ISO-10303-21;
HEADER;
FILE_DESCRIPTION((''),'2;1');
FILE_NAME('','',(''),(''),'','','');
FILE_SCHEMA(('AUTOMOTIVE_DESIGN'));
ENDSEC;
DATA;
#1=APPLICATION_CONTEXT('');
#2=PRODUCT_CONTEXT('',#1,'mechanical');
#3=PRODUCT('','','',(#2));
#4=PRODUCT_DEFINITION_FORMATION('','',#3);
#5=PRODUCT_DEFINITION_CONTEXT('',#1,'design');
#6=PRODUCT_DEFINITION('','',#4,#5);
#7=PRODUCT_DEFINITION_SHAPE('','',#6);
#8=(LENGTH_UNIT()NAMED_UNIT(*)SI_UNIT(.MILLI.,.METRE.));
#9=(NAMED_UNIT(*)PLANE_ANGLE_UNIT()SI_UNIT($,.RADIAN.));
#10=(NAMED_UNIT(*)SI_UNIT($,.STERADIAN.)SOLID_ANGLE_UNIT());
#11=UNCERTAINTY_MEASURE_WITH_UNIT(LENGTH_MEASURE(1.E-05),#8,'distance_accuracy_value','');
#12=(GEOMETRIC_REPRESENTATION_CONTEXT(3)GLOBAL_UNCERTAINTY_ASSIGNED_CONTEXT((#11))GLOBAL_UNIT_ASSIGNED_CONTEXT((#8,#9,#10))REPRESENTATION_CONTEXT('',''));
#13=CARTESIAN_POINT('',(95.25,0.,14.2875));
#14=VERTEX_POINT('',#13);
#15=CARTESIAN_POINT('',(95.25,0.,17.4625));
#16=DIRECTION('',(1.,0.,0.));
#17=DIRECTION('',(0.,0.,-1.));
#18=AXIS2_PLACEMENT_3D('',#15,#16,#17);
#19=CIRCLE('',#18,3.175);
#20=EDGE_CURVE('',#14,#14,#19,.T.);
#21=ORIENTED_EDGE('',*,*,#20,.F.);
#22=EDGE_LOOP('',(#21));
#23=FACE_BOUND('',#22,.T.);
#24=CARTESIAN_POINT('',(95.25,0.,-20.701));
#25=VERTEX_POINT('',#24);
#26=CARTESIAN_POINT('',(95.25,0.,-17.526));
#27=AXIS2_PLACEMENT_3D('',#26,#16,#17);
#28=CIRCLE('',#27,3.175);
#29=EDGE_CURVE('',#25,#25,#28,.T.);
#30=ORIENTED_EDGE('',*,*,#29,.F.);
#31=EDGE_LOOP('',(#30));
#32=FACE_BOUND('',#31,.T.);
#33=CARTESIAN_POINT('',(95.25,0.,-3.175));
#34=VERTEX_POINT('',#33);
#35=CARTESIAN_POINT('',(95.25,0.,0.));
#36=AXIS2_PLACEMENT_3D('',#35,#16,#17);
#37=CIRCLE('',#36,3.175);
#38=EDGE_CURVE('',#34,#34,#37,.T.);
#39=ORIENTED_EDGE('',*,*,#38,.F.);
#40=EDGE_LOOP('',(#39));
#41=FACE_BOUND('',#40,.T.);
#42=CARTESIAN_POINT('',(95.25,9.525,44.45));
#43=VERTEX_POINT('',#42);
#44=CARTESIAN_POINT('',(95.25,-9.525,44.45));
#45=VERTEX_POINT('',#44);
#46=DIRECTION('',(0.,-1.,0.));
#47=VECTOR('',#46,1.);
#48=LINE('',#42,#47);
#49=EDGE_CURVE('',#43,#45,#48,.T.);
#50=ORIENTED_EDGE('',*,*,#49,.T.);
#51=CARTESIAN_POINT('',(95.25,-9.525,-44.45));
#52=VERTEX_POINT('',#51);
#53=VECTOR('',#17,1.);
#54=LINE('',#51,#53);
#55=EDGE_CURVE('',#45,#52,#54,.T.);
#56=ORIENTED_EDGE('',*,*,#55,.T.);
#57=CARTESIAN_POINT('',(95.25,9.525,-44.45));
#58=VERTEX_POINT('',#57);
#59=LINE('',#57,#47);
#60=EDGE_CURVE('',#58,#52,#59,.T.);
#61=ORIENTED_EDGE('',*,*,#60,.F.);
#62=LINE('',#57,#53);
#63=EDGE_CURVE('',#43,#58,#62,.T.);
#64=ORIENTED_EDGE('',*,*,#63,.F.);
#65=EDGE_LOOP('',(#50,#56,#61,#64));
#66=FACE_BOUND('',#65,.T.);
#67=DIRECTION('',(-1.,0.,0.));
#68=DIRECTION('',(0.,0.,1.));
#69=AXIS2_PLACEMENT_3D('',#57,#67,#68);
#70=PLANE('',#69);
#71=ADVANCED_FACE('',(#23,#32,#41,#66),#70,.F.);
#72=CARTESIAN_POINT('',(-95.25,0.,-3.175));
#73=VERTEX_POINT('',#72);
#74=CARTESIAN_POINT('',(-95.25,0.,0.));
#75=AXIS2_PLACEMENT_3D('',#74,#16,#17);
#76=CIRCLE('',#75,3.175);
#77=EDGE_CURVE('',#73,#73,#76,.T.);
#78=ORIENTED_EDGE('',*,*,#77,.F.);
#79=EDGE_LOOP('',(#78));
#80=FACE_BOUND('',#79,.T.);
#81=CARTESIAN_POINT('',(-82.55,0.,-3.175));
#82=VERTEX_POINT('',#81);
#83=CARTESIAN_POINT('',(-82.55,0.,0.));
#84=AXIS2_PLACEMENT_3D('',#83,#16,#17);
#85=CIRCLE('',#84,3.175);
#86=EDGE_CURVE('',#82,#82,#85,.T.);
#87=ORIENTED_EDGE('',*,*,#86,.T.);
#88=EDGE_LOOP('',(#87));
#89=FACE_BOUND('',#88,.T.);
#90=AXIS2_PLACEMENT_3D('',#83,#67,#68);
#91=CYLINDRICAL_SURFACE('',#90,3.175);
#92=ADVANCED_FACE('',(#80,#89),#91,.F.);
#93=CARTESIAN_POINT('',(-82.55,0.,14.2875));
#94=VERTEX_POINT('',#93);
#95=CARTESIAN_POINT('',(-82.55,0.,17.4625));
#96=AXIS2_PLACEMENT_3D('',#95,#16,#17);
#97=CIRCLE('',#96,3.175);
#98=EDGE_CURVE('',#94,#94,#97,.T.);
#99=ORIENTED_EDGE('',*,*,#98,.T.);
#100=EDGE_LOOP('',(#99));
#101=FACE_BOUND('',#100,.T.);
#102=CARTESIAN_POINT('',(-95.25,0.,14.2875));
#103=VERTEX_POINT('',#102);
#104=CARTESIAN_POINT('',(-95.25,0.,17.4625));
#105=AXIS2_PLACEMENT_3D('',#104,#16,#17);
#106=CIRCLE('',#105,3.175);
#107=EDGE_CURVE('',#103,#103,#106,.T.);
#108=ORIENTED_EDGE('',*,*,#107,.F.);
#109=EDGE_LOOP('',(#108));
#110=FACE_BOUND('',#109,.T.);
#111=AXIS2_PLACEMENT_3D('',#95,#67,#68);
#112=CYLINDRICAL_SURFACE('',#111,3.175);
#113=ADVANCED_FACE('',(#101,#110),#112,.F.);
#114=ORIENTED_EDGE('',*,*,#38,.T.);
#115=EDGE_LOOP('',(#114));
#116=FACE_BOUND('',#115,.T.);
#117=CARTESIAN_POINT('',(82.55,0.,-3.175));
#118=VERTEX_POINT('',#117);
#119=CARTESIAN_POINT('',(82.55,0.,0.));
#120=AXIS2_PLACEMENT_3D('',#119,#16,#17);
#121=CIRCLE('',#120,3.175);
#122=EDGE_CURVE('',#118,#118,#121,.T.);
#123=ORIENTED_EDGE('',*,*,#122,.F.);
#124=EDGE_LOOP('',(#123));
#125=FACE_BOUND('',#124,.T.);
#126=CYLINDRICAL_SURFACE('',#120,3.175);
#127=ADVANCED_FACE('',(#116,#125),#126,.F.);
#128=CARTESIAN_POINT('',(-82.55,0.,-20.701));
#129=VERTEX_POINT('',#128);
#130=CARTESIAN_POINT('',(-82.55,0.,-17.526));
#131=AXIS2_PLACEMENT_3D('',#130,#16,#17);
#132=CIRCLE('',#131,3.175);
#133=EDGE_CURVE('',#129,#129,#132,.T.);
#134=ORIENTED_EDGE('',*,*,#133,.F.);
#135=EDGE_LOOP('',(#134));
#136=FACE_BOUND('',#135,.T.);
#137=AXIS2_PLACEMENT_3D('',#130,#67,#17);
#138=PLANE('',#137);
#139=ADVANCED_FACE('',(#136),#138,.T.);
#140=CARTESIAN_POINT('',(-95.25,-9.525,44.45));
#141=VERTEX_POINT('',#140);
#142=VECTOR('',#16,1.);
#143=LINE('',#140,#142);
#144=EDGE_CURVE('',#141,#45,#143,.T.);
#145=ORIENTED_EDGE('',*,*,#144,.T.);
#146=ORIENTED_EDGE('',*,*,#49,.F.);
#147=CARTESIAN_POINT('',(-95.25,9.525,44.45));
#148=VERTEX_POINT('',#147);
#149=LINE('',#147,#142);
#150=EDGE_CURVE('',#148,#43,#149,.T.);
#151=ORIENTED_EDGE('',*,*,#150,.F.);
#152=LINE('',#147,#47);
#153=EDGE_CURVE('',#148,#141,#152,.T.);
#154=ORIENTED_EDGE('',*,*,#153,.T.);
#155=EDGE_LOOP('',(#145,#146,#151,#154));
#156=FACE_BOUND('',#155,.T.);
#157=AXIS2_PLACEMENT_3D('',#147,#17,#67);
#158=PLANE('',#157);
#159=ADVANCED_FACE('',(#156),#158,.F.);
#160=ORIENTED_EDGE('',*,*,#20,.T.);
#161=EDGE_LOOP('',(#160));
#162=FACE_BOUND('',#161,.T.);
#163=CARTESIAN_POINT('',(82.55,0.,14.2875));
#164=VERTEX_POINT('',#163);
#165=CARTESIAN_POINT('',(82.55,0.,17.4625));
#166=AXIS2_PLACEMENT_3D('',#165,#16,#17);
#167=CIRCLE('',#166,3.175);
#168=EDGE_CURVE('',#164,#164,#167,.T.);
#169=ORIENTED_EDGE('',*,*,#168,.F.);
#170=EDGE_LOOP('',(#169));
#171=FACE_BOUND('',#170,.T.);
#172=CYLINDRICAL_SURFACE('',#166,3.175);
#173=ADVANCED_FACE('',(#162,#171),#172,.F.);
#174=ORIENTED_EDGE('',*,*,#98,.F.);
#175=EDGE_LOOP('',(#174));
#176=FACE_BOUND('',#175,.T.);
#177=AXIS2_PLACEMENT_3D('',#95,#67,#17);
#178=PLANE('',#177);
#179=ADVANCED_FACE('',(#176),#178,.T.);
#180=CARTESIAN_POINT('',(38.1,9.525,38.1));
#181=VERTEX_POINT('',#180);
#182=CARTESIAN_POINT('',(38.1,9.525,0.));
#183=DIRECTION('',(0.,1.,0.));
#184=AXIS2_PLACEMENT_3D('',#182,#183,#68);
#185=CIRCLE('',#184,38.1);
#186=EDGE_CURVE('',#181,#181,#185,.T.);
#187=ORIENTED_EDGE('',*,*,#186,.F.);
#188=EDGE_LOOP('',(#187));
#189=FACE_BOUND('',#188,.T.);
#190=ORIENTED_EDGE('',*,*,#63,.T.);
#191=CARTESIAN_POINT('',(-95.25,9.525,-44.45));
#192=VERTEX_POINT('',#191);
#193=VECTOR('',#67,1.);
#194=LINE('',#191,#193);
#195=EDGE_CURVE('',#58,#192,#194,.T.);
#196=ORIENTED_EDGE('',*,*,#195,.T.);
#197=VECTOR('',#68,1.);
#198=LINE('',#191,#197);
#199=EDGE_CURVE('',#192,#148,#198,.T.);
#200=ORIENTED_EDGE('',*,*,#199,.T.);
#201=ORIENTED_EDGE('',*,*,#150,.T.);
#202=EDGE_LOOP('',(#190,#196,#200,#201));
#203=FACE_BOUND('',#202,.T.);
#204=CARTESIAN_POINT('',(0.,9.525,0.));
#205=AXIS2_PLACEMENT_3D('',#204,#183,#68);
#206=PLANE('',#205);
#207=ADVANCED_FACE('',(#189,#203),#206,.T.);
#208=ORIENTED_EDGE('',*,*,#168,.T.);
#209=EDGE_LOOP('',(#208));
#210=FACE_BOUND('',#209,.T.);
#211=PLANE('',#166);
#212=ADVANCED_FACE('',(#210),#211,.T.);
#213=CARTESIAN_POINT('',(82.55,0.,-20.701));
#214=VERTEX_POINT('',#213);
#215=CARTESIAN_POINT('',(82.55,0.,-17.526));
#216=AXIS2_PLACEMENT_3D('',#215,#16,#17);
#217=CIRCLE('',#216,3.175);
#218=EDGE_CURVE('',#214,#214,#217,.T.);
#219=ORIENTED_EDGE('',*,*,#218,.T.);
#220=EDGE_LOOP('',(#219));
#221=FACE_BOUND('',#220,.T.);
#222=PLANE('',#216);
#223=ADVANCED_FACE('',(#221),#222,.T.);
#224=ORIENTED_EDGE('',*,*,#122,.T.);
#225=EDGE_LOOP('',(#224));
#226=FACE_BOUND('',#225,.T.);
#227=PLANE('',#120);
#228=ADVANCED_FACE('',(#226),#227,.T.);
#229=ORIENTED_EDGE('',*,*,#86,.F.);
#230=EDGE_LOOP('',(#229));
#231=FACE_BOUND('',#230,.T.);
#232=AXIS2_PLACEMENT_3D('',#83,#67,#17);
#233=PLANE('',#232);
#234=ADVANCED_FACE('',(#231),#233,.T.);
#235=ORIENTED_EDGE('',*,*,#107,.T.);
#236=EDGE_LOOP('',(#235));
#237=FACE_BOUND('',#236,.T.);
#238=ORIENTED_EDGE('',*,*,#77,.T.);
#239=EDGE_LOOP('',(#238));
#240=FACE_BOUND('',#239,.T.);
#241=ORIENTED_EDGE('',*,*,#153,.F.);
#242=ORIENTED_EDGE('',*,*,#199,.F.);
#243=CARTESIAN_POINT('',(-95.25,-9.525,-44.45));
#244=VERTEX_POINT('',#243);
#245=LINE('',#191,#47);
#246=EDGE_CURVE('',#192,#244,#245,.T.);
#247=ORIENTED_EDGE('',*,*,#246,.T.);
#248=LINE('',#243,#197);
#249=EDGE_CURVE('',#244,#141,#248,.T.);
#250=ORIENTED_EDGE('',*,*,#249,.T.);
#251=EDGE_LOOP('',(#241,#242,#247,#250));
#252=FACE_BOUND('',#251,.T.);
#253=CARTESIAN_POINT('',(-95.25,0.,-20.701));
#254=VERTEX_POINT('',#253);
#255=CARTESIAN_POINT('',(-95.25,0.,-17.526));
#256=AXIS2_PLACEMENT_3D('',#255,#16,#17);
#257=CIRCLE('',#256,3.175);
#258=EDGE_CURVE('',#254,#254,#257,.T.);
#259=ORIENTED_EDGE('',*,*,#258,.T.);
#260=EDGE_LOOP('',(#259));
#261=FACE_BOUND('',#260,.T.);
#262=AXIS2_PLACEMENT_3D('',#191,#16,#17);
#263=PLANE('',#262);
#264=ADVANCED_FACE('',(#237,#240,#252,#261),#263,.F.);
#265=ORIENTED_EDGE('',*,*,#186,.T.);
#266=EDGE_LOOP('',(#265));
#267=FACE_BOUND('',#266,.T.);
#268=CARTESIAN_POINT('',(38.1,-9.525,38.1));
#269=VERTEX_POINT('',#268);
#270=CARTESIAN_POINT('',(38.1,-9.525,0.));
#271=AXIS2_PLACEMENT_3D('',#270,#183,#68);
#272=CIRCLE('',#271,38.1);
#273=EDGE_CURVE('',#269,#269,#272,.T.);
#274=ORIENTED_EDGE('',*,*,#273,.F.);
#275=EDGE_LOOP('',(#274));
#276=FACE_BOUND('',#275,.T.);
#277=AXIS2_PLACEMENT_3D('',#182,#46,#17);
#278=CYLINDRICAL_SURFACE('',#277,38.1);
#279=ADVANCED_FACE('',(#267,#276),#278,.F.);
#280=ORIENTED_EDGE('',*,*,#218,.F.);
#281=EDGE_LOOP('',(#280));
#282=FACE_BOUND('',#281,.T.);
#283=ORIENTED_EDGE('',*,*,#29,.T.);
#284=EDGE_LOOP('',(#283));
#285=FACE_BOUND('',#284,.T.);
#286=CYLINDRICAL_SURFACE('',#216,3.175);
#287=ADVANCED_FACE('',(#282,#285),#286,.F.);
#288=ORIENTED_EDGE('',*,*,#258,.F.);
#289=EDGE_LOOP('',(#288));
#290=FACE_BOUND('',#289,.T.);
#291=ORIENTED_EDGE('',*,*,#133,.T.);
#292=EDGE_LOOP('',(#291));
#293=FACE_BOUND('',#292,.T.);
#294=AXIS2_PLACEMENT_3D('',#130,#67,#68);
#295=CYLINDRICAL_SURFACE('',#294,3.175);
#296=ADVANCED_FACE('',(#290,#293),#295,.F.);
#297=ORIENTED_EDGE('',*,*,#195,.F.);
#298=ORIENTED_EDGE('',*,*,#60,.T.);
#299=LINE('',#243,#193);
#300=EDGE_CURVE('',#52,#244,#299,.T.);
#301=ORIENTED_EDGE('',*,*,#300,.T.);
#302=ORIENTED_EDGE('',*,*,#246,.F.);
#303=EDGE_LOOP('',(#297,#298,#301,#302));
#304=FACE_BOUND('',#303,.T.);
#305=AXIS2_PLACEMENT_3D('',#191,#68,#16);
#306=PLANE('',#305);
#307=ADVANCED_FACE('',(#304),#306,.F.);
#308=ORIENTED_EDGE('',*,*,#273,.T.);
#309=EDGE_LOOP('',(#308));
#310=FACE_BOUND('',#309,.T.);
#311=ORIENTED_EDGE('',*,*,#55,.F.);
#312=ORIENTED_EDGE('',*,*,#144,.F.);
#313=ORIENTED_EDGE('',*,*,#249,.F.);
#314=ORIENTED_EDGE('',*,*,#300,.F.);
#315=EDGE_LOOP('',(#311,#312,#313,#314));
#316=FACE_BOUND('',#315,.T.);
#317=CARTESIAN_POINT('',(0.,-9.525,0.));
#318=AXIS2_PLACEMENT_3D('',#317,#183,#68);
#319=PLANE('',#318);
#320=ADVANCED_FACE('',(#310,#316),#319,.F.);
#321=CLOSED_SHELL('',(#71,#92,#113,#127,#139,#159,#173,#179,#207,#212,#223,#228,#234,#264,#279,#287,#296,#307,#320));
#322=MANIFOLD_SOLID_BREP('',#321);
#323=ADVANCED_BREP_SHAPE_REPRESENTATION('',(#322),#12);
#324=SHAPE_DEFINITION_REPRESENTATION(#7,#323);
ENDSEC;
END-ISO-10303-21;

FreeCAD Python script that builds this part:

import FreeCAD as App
import Part
import Sketcher

V = App.Vector
Q = App.Units.Quantity


def add_polygon(sketch, points):
    """Adds a closed chain of lines whose ends are joined by coincident constraints."""
    first, n = sketch.GeometryCount, len(points)
    for a, b in zip(points, points[1:] + points[:1]):
        sketch.addGeometry(Part.LineSegment(App.Vector(*a, 0), App.Vector(*b, 0)), False)
    for i in range(n):
        sketch.addConstraint(Sketcher.Constraint("Coincident", first + i, 2, first + (i + 1) % n, 1))

doc = App.newDocument("Part")
body = doc.addObject("PartDesign::Body", "Body")

# Sketch on XZ plane
sketch1 = body.newObject("Sketcher::SketchObject", "Sketch")
sketch1.AttachmentSupport = (doc.getObject("XZ_Plane"), [""])
sketch1.MapMode = "FlatFace"
add_polygon(sketch1, [(-95.25, -44.45), (-95.25, 44.45), (95.25, 44.45), (95.25, -44.45)])  # lines 0-3
sketch1.addGeometry(Part.Circle(V(38.1, 0, 0), V(0, 0, 1), 38.1), False)  # 4
sketch1.addConstraint([
    Sketcher.Constraint("Vertical", 0),
    Sketcher.Constraint("Horizontal", 1),
    Sketcher.Constraint("Vertical", 2),
    Sketcher.Constraint("Horizontal", 3),
    Sketcher.Constraint("Symmetric", 0, 2, 2, 2, -1, 1),
    Sketcher.Constraint("PointOnObject", 4, 3, -1),
    Sketcher.Constraint("Diameter", 4, Q("3 in")),
    Sketcher.Constraint("DistanceX", 1, 1, 1, 2, Q("7.5 in")),
    Sketcher.Constraint("DistanceY", 0, 1, 0, 2, Q("3.5 in")),
    Sketcher.Constraint("DistanceX", -1, 1, 4, 3, Q("1.5 in")),
])
pad1 = body.newObject("PartDesign::Pad", "Pad")
pad1.Profile = sketch1
pad1.Length = Q("0.75 in")
pad1.Midplane = True

# Sketch on YZ plane
sketch2 = body.newObject("Sketcher::SketchObject", "Sketch001")
sketch2.AttachmentSupport = (doc.getObject("YZ_Plane"), [""])
sketch2.MapMode = "FlatFace"
sketch2.AttachmentOffset = App.Placement(V(0, 0, 3.75 * 25.4), App.Rotation())
sketch2.addGeometry([
    Part.Circle(V(0, 0, 0), V(0, 0, 1), 3.175),
    Part.Circle(V(0, -17.526, 0), V(0, 0, 1), 3.175),
    Part.Circle(V(0, 17.4625, 0), V(0, 0, 1), 3.175),
], False)
sketch2.addConstraint([
    Sketcher.Constraint("Coincident", 0, 3, -1, 1),
    Sketcher.Constraint("Equal", 0, 1),
    Sketcher.Constraint("Equal", 1, 2),
    Sketcher.Constraint("PointOnObject", 1, 3, -2),
    Sketcher.Constraint("PointOnObject", 2, 3, -2),
    Sketcher.Constraint("Diameter", 0, Q("0.25 in")),
    Sketcher.Constraint("DistanceY", 1, 3, -1, 1, Q("0.69 in")),
    Sketcher.Constraint("DistanceY", -1, 1, 2, 3, Q("0.6875 in")),
])
pocket1 = body.newObject("PartDesign::Pocket", "Pocket")
pocket1.Profile = sketch2
pocket1.Length = Q("0.5 in")
doc.recompute()

mirrored = body.newObject("PartDesign::Mirrored", "Mirrored")
mirrored.Originals = [pocket1]
mirrored.MirrorPlane = (doc.getObject("YZ_Plane"), [""])
body.Tip = mirrored

doc.recompute()
